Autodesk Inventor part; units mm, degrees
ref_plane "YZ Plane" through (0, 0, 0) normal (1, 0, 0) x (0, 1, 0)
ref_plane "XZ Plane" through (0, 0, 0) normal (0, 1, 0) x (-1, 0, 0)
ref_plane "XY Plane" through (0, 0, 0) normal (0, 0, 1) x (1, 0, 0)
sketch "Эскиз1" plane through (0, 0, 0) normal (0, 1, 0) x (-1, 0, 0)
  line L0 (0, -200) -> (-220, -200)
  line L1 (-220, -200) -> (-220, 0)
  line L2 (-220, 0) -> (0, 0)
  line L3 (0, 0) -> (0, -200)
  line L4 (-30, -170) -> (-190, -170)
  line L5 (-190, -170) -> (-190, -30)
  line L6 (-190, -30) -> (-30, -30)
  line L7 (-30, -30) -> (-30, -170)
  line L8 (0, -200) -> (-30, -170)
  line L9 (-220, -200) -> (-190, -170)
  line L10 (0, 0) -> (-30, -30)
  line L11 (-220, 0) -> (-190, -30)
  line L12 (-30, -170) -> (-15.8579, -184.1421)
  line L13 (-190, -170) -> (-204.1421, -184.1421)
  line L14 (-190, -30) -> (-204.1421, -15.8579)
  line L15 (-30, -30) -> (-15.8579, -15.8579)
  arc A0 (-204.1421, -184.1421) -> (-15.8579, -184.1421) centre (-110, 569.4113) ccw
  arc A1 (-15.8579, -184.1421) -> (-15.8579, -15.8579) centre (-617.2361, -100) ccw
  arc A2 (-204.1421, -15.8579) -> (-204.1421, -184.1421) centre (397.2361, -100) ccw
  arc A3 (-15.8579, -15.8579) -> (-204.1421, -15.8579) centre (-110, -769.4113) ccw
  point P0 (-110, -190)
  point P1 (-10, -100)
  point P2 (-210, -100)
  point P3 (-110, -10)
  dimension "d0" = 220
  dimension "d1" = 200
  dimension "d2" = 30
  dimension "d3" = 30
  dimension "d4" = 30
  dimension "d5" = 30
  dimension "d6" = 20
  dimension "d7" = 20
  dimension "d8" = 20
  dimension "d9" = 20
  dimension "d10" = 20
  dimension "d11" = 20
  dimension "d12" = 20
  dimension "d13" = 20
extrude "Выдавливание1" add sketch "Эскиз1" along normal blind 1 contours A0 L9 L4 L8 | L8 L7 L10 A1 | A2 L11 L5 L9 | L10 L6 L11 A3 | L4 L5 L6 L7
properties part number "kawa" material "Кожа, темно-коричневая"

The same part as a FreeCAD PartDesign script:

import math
import FreeCAD as App
import Part
import Sketcher

V = App.Vector

doc = App.newDocument("Part")
params = doc.addObject("Spreadsheet::Sheet", "Params")
for row, (alias, value) in enumerate([
    ("pad1_length", "1 mm"),
], start=1):
    params.set(f"A{row}", alias)
    params.set(f"B{row}", "=" + value)
    params.setAlias(f"B{row}", alias)

body = doc.addObject("PartDesign::Body", "Body")

sketch1 = body.newObject("Sketcher::SketchObject", "Sketch")
sketch1.AttachmentSupport = (doc.getObject("XZ_Plane"), [""])
sketch1.MapMode = "FlatFace"
sketch1.addGeometry([
    Part.ArcOfCircle(Part.Circle(V(110, 569, 0), V(0, 0, 1), 759), math.radians(-97.12), math.radians(-82.88)),
    Part.ArcOfCircle(Part.Circle(V(617, -100, 0), V(0, 0, 1), 607), math.radians(172.04), math.radians(187.96)),
    Part.ArcOfCircle(Part.Circle(V(110, -769, 0), V(0, 0, 1), 759), math.radians(82.88), math.radians(97.12)),
    Part.ArcOfCircle(Part.Circle(V(-397, -100, 0), V(0, 0, 1), 607), math.radians(-7.96), math.radians(7.96)),
], False)
sketch1.addConstraint([
    Sketcher.Constraint("Coincident", 0, 1, 1, 2),
    Sketcher.Constraint("Coincident", 1, 1, 2, 2),
    Sketcher.Constraint("Coincident", 2, 1, 3, 2),
    Sketcher.Constraint("Coincident", 3, 1, 0, 2),
    Sketcher.Constraint("Equal", 0, 2),
    Sketcher.Constraint("Equal", 1, 3),
    Sketcher.Constraint("Horizontal", 1, 3, 3, 3),
    Sketcher.Constraint("Vertical", 0, 3, 2, 3),
    Sketcher.Constraint("DistanceX", -1, 1, 0, 3, 110.0),
    Sketcher.Constraint("DistanceY", 1, 3, -1, 1, 100.0),
    Sketcher.Constraint("Radius", 1, 607.236),
    Sketcher.Constraint("Radius", 0, 759.4113),
    Sketcher.Constraint("DistanceX", -1, 1, 1, 3, 617.236),
    Sketcher.Constraint("DistanceX", 3, 3, -1, 1, 397.236),
    Sketcher.Constraint("DistanceY", 0, 1, -1, 1, 184.142),
    Sketcher.Constraint("DistanceY", 2, 1, -1, 1, 15.858),
])
pad1 = body.newObject("PartDesign::Pad", "Pad")
pad1.Profile = sketch1
pad1.setExpression("Length", "Params.pad1_length")
pad1.Reversed = True

doc.recompute()
